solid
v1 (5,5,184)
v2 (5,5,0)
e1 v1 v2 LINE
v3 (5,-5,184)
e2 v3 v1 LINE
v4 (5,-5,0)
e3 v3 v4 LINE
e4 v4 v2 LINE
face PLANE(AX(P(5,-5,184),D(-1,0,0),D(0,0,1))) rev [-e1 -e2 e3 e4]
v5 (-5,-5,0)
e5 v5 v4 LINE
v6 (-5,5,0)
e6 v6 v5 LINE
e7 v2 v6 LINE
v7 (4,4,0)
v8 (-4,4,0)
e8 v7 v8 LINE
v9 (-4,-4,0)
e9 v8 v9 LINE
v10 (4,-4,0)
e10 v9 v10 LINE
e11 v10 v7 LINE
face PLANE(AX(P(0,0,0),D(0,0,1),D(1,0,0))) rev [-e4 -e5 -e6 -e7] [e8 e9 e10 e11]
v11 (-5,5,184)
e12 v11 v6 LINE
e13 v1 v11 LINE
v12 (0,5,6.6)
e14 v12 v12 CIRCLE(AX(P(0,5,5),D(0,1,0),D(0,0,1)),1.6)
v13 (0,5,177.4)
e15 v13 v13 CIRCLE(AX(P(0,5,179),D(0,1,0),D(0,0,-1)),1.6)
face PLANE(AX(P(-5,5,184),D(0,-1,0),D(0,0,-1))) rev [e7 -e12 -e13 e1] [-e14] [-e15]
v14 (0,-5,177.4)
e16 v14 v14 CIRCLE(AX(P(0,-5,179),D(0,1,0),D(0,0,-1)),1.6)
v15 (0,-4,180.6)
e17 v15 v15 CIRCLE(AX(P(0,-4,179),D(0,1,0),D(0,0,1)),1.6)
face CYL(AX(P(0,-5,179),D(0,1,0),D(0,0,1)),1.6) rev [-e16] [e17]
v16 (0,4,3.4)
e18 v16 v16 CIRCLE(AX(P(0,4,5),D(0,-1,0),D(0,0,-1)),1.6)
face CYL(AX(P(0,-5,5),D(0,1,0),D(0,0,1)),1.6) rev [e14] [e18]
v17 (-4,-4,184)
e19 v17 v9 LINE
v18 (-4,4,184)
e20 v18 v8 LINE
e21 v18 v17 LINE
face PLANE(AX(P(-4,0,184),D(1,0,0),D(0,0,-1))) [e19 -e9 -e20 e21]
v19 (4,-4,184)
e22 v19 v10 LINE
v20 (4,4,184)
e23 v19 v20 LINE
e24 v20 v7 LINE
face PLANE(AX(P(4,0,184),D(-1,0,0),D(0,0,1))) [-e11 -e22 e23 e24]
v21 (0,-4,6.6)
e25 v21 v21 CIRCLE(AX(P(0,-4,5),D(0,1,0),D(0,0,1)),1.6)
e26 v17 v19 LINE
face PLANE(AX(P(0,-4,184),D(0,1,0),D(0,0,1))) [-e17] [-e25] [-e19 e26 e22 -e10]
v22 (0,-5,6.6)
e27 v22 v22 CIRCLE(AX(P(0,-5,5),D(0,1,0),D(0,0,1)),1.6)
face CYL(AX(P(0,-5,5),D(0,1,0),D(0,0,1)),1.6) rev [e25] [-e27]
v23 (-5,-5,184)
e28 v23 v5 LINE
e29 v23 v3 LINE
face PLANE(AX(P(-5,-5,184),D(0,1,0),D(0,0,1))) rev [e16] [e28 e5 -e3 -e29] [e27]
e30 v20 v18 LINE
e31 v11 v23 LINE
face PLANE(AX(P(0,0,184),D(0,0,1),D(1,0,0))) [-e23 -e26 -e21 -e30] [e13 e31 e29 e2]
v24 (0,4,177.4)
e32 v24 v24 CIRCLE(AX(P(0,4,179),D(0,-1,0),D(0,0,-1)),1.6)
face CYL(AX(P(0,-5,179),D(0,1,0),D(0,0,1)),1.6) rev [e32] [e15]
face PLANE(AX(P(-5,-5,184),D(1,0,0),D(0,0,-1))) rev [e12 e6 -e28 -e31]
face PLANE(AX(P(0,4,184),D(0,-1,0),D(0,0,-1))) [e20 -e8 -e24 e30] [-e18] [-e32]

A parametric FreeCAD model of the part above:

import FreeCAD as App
import Part
import Sketcher


def add_polygon(sketch, points):
    """Adds a closed chain of lines whose ends are joined by coincident constraints."""
    first, n = sketch.GeometryCount, len(points)
    for a, b in zip(points, points[1:] + points[:1]):
        sketch.addGeometry(Part.LineSegment(App.Vector(*a, 0), App.Vector(*b, 0)), False)
    for i in range(n):
        sketch.addConstraint(Sketcher.Constraint("Coincident", first + i, 2, first + (i + 1) % n, 1))

doc = App.newDocument("Part")
body = doc.addObject("PartDesign::Body", "Body")

# Sketch on XY plane
sketch1 = doc.addObject("Sketcher::SketchObject", "Sketch")
body.addObject(sketch1)
sketch1.AttachmentSupport = (doc.XY_Plane, [""])
sketch1.MapMode = "FlatFace"
add_polygon(sketch1, [(-5, 5), (-5, -5), (5, -5), (5, 5)])  # lines 0-3
add_polygon(sketch1, [(4, -4), (-4, -4), (-4, 4), (4, 4)])  # lines 4-7
sketch1.addConstraint([
    Sketcher.Constraint("Vertical", 0),
    Sketcher.Constraint("Horizontal", 1),
    Sketcher.Constraint("Vertical", 2),
    Sketcher.Constraint("Horizontal", 3),
    Sketcher.Constraint("Horizontal", 4),
    Sketcher.Constraint("Vertical", 5),
    Sketcher.Constraint("Horizontal", 6),
    Sketcher.Constraint("Vertical", 7),
    Sketcher.Constraint("Symmetric", 0, 2, 2, 2, -1, 1),
    Sketcher.Constraint("Symmetric", 4, 2, 6, 2, -1, 1),
    Sketcher.Constraint("Equal", 3, 0),
    Sketcher.Constraint("Equal", 6, 5),
    Sketcher.Constraint("DistanceX", 1, 1, 1, 2, 10.0),
    Sketcher.Constraint("DistanceX", 4, 2, 4, 1, 8.0),
])
pad1 = doc.addObject("PartDesign::Pad", "Pad")
body.addObject(pad1)
pad1.Profile = sketch1
pad1.Length = 184

# Sketch on XZ plane
sketch2 = doc.addObject("Sketcher::SketchObject", "Sketch001")
body.addObject(sketch2)
sketch2.AttachmentSupport = (doc.XZ_Plane, [""])
sketch2.MapMode = "FlatFace"
sketch2.AttachmentOffset = App.Placement(App.Vector(0, 0, -5), App.Rotation())
sketch2.addGeometry([
    Part.Circle(App.Vector(0, 5, 0), App.Vector(0, 0, 1), 1.6),
    Part.Circle(App.Vector(0, 179, 0), App.Vector(0, 0, 1), 1.6),
], False)
sketch2.addConstraint([
    Sketcher.Constraint("Equal", 0, 1),
    Sketcher.Constraint("PointOnObject", 0, 3, -2),
    Sketcher.Constraint("PointOnObject", 1, 3, -2),
    Sketcher.Constraint("Diameter", 0, 3.2),
    Sketcher.Constraint("DistanceY", -1, 1, 0, 3, 5.0),
    Sketcher.Constraint("DistanceY", -1, 1, 1, 3, 179.0),
])
pocket1 = doc.addObject("PartDesign::Pocket", "Pocket")
body.addObject(pocket1)
pocket1.Profile = sketch2
pocket1.Type = "ThroughAll"
pocket1.Reversed = True

doc.recompute()
